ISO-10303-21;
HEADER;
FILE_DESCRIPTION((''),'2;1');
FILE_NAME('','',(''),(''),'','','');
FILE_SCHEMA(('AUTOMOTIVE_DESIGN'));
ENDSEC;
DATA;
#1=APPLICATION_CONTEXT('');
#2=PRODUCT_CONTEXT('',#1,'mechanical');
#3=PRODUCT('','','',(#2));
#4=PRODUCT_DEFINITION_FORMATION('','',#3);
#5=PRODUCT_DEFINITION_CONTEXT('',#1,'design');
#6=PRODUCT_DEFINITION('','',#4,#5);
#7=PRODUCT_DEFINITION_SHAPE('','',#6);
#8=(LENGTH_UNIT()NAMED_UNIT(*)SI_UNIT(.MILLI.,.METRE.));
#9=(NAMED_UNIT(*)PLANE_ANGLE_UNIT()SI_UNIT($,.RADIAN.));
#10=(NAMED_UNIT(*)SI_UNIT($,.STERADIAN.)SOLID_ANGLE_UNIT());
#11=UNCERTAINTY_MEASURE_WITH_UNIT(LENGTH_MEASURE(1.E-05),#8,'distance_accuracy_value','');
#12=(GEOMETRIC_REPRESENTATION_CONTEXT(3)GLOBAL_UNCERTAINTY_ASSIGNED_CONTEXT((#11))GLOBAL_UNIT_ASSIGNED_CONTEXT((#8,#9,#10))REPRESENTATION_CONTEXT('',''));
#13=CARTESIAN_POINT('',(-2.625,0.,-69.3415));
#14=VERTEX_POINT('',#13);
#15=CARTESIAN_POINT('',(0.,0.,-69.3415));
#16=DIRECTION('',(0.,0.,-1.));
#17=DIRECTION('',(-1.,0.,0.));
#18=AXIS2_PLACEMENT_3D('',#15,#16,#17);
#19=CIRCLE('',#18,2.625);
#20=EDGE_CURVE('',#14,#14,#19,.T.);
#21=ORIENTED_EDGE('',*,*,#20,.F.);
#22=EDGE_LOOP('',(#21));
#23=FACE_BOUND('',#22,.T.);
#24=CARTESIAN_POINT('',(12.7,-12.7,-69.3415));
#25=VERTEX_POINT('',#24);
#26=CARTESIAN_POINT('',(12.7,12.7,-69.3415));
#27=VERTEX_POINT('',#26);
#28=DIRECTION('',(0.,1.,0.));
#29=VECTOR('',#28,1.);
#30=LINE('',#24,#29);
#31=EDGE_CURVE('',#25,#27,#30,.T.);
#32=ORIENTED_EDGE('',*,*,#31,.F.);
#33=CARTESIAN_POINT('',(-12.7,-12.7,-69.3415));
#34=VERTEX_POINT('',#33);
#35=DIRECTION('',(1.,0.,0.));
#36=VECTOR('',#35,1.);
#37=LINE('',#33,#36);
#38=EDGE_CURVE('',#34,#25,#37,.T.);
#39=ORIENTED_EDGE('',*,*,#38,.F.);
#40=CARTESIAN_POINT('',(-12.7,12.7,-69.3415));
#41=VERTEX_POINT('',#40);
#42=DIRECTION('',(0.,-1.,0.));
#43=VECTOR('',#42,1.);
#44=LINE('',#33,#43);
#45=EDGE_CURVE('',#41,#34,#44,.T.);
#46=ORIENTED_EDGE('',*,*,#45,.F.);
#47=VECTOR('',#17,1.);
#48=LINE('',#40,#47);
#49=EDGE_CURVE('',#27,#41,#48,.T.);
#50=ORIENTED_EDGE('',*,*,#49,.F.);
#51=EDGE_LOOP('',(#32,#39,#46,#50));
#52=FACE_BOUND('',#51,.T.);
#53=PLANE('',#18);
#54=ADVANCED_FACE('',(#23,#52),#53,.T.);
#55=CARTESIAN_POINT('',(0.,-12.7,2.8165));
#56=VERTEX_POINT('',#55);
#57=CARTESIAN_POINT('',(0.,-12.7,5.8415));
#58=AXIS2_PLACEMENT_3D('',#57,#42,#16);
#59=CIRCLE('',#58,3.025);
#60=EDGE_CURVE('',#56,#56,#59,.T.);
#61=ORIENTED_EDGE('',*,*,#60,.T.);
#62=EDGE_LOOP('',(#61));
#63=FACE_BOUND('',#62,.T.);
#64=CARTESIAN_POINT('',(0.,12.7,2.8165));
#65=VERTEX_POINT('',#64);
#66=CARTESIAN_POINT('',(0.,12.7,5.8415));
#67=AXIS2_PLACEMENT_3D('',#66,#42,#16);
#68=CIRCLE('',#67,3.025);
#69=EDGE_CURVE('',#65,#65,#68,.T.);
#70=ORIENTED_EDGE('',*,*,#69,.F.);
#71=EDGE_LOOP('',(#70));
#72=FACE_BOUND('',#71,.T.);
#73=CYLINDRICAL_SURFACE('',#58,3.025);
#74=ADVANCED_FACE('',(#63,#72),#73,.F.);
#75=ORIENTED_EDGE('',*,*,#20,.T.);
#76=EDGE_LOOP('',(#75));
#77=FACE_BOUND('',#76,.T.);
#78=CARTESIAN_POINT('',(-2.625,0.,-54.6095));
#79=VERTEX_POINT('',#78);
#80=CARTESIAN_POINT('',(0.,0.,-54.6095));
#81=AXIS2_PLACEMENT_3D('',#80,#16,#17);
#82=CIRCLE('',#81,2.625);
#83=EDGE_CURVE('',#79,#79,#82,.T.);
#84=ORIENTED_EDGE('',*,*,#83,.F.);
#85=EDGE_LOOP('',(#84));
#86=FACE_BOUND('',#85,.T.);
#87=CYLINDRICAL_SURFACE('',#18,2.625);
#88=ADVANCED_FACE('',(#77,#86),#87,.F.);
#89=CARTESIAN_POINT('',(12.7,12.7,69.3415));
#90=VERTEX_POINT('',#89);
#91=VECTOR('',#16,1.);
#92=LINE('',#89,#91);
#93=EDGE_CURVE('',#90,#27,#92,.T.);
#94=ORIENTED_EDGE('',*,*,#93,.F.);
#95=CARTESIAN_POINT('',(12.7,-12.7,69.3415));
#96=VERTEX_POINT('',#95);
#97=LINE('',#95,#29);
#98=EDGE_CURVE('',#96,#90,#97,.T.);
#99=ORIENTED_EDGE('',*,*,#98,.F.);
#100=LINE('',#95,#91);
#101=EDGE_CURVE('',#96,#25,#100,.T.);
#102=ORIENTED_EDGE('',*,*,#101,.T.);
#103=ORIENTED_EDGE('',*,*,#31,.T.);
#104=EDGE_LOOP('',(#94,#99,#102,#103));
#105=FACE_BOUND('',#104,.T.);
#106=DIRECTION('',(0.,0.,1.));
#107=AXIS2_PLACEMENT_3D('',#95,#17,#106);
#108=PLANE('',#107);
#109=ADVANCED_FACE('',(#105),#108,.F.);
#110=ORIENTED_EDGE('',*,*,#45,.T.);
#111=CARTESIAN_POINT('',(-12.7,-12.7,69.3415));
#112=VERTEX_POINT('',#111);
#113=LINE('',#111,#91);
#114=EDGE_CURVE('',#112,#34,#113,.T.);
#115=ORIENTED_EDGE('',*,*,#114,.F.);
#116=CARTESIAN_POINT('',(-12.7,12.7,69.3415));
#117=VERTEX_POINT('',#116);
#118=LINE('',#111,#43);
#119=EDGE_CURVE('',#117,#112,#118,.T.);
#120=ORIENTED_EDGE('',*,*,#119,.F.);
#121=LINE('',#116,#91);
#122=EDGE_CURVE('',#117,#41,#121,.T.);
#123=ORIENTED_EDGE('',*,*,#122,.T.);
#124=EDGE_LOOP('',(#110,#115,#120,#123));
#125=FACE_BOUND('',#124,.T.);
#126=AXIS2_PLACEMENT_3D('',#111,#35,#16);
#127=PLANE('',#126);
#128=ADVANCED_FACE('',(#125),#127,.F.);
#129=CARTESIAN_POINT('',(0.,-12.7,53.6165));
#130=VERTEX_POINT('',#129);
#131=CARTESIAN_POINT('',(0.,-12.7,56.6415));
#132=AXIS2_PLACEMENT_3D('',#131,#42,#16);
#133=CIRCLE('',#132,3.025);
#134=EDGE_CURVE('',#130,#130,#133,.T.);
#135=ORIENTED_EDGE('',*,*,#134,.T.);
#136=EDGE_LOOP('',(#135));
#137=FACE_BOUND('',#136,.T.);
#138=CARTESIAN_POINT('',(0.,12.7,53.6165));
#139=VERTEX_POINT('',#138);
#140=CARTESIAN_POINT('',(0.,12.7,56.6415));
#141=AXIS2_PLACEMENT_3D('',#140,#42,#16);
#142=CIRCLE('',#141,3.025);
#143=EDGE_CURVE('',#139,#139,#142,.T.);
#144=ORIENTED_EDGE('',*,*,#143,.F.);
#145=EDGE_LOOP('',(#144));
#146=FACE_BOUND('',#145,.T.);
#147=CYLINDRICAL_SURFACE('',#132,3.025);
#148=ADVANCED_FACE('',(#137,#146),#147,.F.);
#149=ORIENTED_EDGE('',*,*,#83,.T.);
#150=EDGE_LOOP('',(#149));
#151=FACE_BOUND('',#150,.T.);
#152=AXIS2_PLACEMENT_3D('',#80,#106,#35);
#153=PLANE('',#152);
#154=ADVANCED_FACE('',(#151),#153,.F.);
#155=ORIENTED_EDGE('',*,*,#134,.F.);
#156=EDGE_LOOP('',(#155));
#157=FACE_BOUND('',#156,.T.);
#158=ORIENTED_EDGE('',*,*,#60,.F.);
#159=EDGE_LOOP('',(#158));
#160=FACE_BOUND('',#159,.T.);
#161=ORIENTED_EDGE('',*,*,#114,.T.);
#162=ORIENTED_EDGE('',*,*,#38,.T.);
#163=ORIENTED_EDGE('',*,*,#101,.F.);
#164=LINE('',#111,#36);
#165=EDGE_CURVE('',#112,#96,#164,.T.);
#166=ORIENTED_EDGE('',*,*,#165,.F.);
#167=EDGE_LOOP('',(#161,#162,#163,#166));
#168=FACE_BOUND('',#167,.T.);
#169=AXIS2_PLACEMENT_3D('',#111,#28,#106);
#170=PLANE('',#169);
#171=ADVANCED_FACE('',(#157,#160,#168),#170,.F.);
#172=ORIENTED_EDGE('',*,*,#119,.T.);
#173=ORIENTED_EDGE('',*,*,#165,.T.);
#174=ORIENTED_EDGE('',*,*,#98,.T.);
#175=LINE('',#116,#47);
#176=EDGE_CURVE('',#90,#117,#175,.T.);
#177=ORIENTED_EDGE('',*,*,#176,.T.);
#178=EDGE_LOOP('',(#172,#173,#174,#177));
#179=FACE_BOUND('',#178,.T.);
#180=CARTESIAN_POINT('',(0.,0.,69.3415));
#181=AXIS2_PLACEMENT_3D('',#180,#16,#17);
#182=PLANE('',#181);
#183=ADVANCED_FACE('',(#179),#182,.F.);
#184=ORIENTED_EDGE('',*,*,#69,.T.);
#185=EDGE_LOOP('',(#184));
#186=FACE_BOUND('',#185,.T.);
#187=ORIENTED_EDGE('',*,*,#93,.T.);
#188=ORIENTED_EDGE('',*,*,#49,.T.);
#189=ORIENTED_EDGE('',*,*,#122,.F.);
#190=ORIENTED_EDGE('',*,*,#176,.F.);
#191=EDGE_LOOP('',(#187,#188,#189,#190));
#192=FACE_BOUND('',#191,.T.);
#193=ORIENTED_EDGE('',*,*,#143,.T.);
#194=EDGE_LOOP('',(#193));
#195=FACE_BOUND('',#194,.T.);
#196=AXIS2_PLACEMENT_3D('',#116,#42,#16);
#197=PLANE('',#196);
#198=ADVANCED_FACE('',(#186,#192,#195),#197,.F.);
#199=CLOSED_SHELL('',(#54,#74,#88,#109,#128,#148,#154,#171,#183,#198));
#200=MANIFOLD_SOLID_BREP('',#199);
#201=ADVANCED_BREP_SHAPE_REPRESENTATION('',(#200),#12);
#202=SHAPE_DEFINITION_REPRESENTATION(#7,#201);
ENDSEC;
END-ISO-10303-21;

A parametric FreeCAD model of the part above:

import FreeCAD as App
import Part
import Sketcher
from FreeCAD import Vector
Q = App.Units.Quantity

doc = App.newDocument("Part")
body = doc.addObject("PartDesign::Body", "Body")

# Sketch on XY plane
sketch1 = doc.addObject("Sketcher::SketchObject", "Sketch")
body.addObject(sketch1)
sketch1.AttachmentSupport = (doc.XY_Plane, [""])
sketch1.MapMode = "FlatFace"
sketch1.addGeometry(Part.LineSegment(Vector(-12.7, 12.7, 0), Vector(-12.7, -12.7, 0)), False)
sketch1.addGeometry(Part.LineSegment(Vector(-12.7, -12.7, 0), Vector(12.7, -12.7, 0)), False)
sketch1.addGeometry(Part.LineSegment(Vector(12.7, -12.7, 0), Vector(12.7, 12.7, 0)), False)
sketch1.addGeometry(Part.LineSegment(Vector(12.7, 12.7, 0), Vector(-12.7, 12.7, 0)), False)
sketch1.addConstraint(Sketcher.Constraint("Coincident", 0, 2, 1, 1))
sketch1.addConstraint(Sketcher.Constraint("Coincident", 1, 2, 2, 1))
sketch1.addConstraint(Sketcher.Constraint("Coincident", 2, 2, 3, 1))
sketch1.addConstraint(Sketcher.Constraint("Coincident", 3, 2, 0, 1))
sketch1.addConstraint(Sketcher.Constraint("Vertical", 0))
sketch1.addConstraint(Sketcher.Constraint("Horizontal", 1))
sketch1.addConstraint(Sketcher.Constraint("Vertical", 2))
sketch1.addConstraint(Sketcher.Constraint("Horizontal", 3))
sketch1.addConstraint(Sketcher.Constraint("Symmetric", 0, 2, 2, 2, -1, 1))
sketch1.addConstraint(Sketcher.Constraint("Equal", 3, 0))
sketch1.addConstraint(Sketcher.Constraint("DistanceX", 1, 1, 1, 2, Q("1 in")))
pad1 = doc.addObject("PartDesign::Pad", "Pad")
body.addObject(pad1)
pad1.Profile = sketch1
pad1.Length = 138.682999
pad1.Midplane = True

# Sketch on XZ plane
sketch2 = doc.addObject("Sketcher::SketchObject", "Sketch001")
body.addObject(sketch2)
sketch2.AttachmentSupport = (doc.XZ_Plane, [""])
sketch2.MapMode = "FlatFace"
sketch2.AttachmentOffset = App.Placement(Vector(0, 0, 0.5 * 25.4), App.Rotation())
sketch2.addGeometry(Part.Circle(Vector(0, 5.8415, 0), Vector(0, 0, 1), 3.025), False)
sketch2.addGeometry(Part.Circle(Vector(0, 56.6415, 0), Vector(0, 0, 1), 3.025), False)
sketch2.addConstraint(Sketcher.Constraint("Equal", 0, 1))
sketch2.addConstraint(Sketcher.Constraint("PointOnObject", 0, 3, -2))
sketch2.addConstraint(Sketcher.Constraint("PointOnObject", 1, 3, -2))
sketch2.addConstraint(Sketcher.Constraint("DistanceY", 0, 3, 1, 3, Q("2 in")))
sketch2.addConstraint(Sketcher.Constraint("Diameter", 0, 6.05))
sketch2.addConstraint(Sketcher.Constraint("DistanceY", -1, 1, 0, 3, 5.8415))
doc.recompute()
hole = doc.addObject("PartDesign::Hole", "Hole")
body.addObject(hole)
hole.Profile = sketch2
hole.ThreadType = "None"
hole.Diameter = 6.05
hole.DepthType = "ThroughAll"

# Sketch on XY plane
sketch3 = doc.addObject("Sketcher::SketchObject", "Sketch002")
body.addObject(sketch3)
sketch3.AttachmentSupport = (doc.XY_Plane, [""])
sketch3.MapMode = "FlatFace"
sketch3.AttachmentOffset = App.Placement(Vector(0, 0, -69.3415), App.Rotation())
sketch3.addGeometry(Part.Circle(Vector(0, 0, 0), Vector(0, 0, 1), 2.625), False)
sketch3.addConstraint(Sketcher.Constraint("Coincident", 0, 3, -1, 1))
sketch3.addConstraint(Sketcher.Constraint("Diameter", 0, 5.25))
doc.recompute()
hole2 = doc.addObject("PartDesign::Hole", "Hole001")
body.addObject(hole2)
hole2.Profile = sketch3
hole2.ThreadType = "None"
hole2.Diameter = 5.25
hole2.DepthType = "Dimension"
hole2.Depth = Q("0.58 in")
hole2.DrillPoint = "Flat"
hole2.Reversed = True

doc.recompute()
